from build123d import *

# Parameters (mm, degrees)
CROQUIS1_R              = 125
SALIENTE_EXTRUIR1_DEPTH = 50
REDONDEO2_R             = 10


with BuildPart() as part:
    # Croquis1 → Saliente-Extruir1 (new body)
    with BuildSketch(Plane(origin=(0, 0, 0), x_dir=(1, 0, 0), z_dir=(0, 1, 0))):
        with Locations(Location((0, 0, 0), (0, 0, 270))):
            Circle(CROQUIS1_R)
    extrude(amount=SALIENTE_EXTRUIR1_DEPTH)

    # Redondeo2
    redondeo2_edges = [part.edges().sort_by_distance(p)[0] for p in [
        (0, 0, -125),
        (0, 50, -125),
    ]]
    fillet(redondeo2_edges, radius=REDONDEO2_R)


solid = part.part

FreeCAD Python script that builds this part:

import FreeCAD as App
import Part
import Sketcher
from FreeCAD import Vector
Q = App.Units.Quantity


def edges_at(feature, points):
    """Names of the edges that pass closest to the given points."""
    edges = feature.Shape.Edges
    near = lambda p: min(range(len(edges)), key=lambda i: edges[i].distToShape(Part.Vertex(*p))[0])
    return sorted({f"Edge{near(p) + 1}" for p in points})

doc = App.newDocument("Part")
body = doc.addObject("PartDesign::Body", "Body")

# Sketch on XZ plane
sketch1 = doc.addObject("Sketcher::SketchObject", "Sketch")
body.addObject(sketch1)
sketch1.AttachmentSupport = (doc.XZ_Plane, [""])
sketch1.MapMode = "FlatFace"
sketch1.addGeometry(Part.Circle(Vector(0, 0, 0), Vector(0, 0, 1), 125), False)
sketch1.addConstraint([
    Sketcher.Constraint("Coincident", 0, 3, -1, 1),
    Sketcher.Constraint("Diameter", 0, Q("250 mm")),
])
pad1 = doc.addObject("PartDesign::Pad", "Pad")
body.addObject(pad1)
pad1.Profile = sketch1
pad1.Length = 50
pad1.Reversed = True
doc.recompute()

fillet = doc.addObject("PartDesign::Fillet", "Fillet")
body.addObject(fillet)
fillet.Base = (pad1, edges_at(pad1, [(0, 0, -125), (0, 50, -125)]))
fillet.Radius = 10

doc.recompute()
